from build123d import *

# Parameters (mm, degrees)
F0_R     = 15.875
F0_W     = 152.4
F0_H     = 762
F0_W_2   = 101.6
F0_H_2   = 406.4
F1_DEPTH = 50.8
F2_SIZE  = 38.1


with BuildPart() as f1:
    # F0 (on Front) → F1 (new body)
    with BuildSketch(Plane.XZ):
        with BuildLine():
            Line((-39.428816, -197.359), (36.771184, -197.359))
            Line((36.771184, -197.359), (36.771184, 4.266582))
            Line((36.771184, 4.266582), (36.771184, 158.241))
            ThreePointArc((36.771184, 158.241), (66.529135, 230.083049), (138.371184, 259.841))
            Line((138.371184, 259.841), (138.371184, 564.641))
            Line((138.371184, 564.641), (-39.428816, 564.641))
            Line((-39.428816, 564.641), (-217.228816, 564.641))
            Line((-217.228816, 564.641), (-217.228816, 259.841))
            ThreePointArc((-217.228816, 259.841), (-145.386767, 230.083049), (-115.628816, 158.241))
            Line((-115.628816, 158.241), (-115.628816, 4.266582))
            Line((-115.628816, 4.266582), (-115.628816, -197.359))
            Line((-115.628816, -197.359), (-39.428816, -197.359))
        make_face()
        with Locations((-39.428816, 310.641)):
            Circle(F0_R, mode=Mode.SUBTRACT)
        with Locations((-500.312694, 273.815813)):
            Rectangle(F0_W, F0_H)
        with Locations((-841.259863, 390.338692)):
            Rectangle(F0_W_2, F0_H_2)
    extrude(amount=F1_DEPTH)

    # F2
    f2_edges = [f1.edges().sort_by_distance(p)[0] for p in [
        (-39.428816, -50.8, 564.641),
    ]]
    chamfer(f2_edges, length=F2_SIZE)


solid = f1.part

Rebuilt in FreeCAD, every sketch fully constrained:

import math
import FreeCAD as App
import Part
import Sketcher
Q = App.Units.Quantity


def edges_at(feature, points):
    """Names of the edges that pass closest to the given points."""
    edges = feature.Shape.Edges
    near = lambda p: min(range(len(edges)), key=lambda i: edges[i].distToShape(Part.Vertex(*p))[0])
    return sorted({f"Edge{near(p) + 1}" for p in points})


def add_polygon(sketch, points):
    """Adds a closed chain of lines whose ends are joined by coincident constraints."""
    first, n = sketch.GeometryCount, len(points)
    for a, b in zip(points, points[1:] + points[:1]):
        sketch.addGeometry(Part.LineSegment(App.Vector(*a, 0), App.Vector(*b, 0)), False)
    for i in range(n):
        sketch.addConstraint(Sketcher.Constraint("Coincident", first + i, 2, first + (i + 1) % n, 1))

doc = App.newDocument("Part")
body = doc.addObject("PartDesign::Body", "Body")
body.AllowCompound = True

# Sketch on XZ plane
sketch1 = body.newObject("Sketcher::SketchObject", "Sketch")
sketch1.AttachmentSupport = (doc.getObject("XZ_Plane"), [""])
sketch1.MapMode = "FlatFace"
sketch1.addGeometry(Part.LineSegment(App.Vector(36.771184, -197.359, 0), App.Vector(36.771184, 158.241, 0)), False)  # 0
sketch1.addGeometry(Part.ArcOfCircle(Part.Circle(App.Vector(138.371184, 158.241, 0), App.Vector(0, 0, 1), 101.6), math.radians(90), math.radians(180)), False)  # 1
sketch1.addGeometry(Part.LineSegment(App.Vector(138.371184, 259.841, 0), App.Vector(138.371184, 564.641, 0)), False)  # 2
sketch1.addGeometry(Part.LineSegment(App.Vector(138.371184, 564.641, 0), App.Vector(-217.228816, 564.641, 0)), False)  # 3
sketch1.addGeometry(Part.LineSegment(App.Vector(-217.228816, 564.641, 0), App.Vector(-217.228816, 259.841, 0)), False)  # 4
sketch1.addGeometry(Part.ArcOfCircle(Part.Circle(App.Vector(-217.228816, 158.241, 0), App.Vector(0, 0, 1), 101.6), math.radians(0), math.radians(90)), False)  # 5
sketch1.addGeometry(Part.LineSegment(App.Vector(-115.628816, 158.241, 0), App.Vector(-115.628816, -197.359, 0)), False)  # 6
sketch1.addGeometry(Part.LineSegment(App.Vector(-115.628816, -197.359, 0), App.Vector(36.771184, -197.359, 0)), False)  # 7
sketch1.addGeometry(Part.Circle(App.Vector(-39.428816, 310.641, 0), App.Vector(0, 0, 1), 15.875), False)  # 8
add_polygon(sketch1, [(-576.512694, 654.815813), (-576.512694, -107.184187), (-424.112694, -107.184187), (-424.112694, 654.815813)])  # lines 9-12
add_polygon(sketch1, [(-892.059863, 593.538692), (-892.059863, 187.138692), (-790.459863, 187.138692), (-790.459863, 593.538692)])  # lines 13-16
sketch1.addConstraint([
    Sketcher.Constraint("Tangent", 0, 2, 1, 2),
    Sketcher.Constraint("Coincident", 1, 1, 2, 1),
    Sketcher.Constraint("Coincident", 2, 2, 3, 1),
    Sketcher.Constraint("Coincident", 3, 2, 4, 1),
    Sketcher.Constraint("Coincident", 4, 2, 5, 2),
    Sketcher.Constraint("Tangent", 5, 1, 6, 1),
    Sketcher.Constraint("Coincident", 6, 2, 7, 1),
    Sketcher.Constraint("Coincident", 7, 2, 0, 1),
    Sketcher.Constraint("Vertical", 0),
    Sketcher.Constraint("Vertical", 2),
    Sketcher.Constraint("Horizontal", 3),
    Sketcher.Constraint("Vertical", 4),
    Sketcher.Constraint("Vertical", 6),
    Sketcher.Constraint("Horizontal", 7),
    Sketcher.Constraint("Vertical", 9),
    Sketcher.Constraint("Horizontal", 10),
    Sketcher.Constraint("Vertical", 11),
    Sketcher.Constraint("Horizontal", 12),
    Sketcher.Constraint("Vertical", 13),
    Sketcher.Constraint("Horizontal", 14),
    Sketcher.Constraint("Vertical", 15),
    Sketcher.Constraint("Horizontal", 16),
    Sketcher.Constraint("Equal", 1, 5),
    Sketcher.Constraint("Horizontal", 1, 3, 5, 3),
    Sketcher.Constraint("Vertical", 5, 3, 3, 2),
    Sketcher.Constraint("Equal", 7, 10),
    Sketcher.Constraint("Equal", 3, 0),
    Sketcher.Constraint("Radius", 1, Q("4 in")),
    Sketcher.Constraint("Diameter", 8, Q("1.25 in")),
    Sketcher.Constraint("DistanceX", 3, 2, 3, 1, Q("14 in")),
    Sketcher.Constraint("DistanceX", 7, 1, 7, 2, Q("6 in")),
    Sketcher.Constraint("DistanceX", 14, 1, 14, 2, Q("4 in")),
    Sketcher.Constraint("DistanceY", 2, 1, 2, 2, Q("12 in")),
    Sketcher.Constraint("DistanceY", 9, 2, 9, 1, Q("30 in")),
    Sketcher.Constraint("DistanceY", 13, 2, 13, 1, Q("16 in")),
    Sketcher.Constraint("DistanceX", 8, 3, 1, 3, Q("7 in")),
    Sketcher.Constraint("DistanceY", 1, 3, 8, 3, Q("6 in")),
    Sketcher.Constraint("DistanceY", -1, 1, 1, 3, 158.241),
    Sketcher.Constraint("DistanceY", -1, 1, 13, 2, 187.138692),
    Sketcher.Constraint("DistanceX", 9, 2, 5, 3, 359.283878),
    Sketcher.Constraint("DistanceX", 13, 2, 9, 2, 315.547169),
    Sketcher.Constraint("DistanceY", 9, 2, 13, 2, 294.322879),
    Sketcher.Constraint("DistanceX", -1, 1, 1, 3, 138.371184),
])
pad1 = body.newObject("PartDesign::Pad", "Pad")
pad1.Profile = sketch1
pad1.Length = Q("2 in")
doc.recompute()

chamfer = body.newObject("PartDesign::Chamfer", "Chamfer")
chamfer.Base = (pad1, edges_at(pad1, [(-39.429, -50.8, 564.641)]))
chamfer.Size = Q("1.5 in")

doc.recompute()
